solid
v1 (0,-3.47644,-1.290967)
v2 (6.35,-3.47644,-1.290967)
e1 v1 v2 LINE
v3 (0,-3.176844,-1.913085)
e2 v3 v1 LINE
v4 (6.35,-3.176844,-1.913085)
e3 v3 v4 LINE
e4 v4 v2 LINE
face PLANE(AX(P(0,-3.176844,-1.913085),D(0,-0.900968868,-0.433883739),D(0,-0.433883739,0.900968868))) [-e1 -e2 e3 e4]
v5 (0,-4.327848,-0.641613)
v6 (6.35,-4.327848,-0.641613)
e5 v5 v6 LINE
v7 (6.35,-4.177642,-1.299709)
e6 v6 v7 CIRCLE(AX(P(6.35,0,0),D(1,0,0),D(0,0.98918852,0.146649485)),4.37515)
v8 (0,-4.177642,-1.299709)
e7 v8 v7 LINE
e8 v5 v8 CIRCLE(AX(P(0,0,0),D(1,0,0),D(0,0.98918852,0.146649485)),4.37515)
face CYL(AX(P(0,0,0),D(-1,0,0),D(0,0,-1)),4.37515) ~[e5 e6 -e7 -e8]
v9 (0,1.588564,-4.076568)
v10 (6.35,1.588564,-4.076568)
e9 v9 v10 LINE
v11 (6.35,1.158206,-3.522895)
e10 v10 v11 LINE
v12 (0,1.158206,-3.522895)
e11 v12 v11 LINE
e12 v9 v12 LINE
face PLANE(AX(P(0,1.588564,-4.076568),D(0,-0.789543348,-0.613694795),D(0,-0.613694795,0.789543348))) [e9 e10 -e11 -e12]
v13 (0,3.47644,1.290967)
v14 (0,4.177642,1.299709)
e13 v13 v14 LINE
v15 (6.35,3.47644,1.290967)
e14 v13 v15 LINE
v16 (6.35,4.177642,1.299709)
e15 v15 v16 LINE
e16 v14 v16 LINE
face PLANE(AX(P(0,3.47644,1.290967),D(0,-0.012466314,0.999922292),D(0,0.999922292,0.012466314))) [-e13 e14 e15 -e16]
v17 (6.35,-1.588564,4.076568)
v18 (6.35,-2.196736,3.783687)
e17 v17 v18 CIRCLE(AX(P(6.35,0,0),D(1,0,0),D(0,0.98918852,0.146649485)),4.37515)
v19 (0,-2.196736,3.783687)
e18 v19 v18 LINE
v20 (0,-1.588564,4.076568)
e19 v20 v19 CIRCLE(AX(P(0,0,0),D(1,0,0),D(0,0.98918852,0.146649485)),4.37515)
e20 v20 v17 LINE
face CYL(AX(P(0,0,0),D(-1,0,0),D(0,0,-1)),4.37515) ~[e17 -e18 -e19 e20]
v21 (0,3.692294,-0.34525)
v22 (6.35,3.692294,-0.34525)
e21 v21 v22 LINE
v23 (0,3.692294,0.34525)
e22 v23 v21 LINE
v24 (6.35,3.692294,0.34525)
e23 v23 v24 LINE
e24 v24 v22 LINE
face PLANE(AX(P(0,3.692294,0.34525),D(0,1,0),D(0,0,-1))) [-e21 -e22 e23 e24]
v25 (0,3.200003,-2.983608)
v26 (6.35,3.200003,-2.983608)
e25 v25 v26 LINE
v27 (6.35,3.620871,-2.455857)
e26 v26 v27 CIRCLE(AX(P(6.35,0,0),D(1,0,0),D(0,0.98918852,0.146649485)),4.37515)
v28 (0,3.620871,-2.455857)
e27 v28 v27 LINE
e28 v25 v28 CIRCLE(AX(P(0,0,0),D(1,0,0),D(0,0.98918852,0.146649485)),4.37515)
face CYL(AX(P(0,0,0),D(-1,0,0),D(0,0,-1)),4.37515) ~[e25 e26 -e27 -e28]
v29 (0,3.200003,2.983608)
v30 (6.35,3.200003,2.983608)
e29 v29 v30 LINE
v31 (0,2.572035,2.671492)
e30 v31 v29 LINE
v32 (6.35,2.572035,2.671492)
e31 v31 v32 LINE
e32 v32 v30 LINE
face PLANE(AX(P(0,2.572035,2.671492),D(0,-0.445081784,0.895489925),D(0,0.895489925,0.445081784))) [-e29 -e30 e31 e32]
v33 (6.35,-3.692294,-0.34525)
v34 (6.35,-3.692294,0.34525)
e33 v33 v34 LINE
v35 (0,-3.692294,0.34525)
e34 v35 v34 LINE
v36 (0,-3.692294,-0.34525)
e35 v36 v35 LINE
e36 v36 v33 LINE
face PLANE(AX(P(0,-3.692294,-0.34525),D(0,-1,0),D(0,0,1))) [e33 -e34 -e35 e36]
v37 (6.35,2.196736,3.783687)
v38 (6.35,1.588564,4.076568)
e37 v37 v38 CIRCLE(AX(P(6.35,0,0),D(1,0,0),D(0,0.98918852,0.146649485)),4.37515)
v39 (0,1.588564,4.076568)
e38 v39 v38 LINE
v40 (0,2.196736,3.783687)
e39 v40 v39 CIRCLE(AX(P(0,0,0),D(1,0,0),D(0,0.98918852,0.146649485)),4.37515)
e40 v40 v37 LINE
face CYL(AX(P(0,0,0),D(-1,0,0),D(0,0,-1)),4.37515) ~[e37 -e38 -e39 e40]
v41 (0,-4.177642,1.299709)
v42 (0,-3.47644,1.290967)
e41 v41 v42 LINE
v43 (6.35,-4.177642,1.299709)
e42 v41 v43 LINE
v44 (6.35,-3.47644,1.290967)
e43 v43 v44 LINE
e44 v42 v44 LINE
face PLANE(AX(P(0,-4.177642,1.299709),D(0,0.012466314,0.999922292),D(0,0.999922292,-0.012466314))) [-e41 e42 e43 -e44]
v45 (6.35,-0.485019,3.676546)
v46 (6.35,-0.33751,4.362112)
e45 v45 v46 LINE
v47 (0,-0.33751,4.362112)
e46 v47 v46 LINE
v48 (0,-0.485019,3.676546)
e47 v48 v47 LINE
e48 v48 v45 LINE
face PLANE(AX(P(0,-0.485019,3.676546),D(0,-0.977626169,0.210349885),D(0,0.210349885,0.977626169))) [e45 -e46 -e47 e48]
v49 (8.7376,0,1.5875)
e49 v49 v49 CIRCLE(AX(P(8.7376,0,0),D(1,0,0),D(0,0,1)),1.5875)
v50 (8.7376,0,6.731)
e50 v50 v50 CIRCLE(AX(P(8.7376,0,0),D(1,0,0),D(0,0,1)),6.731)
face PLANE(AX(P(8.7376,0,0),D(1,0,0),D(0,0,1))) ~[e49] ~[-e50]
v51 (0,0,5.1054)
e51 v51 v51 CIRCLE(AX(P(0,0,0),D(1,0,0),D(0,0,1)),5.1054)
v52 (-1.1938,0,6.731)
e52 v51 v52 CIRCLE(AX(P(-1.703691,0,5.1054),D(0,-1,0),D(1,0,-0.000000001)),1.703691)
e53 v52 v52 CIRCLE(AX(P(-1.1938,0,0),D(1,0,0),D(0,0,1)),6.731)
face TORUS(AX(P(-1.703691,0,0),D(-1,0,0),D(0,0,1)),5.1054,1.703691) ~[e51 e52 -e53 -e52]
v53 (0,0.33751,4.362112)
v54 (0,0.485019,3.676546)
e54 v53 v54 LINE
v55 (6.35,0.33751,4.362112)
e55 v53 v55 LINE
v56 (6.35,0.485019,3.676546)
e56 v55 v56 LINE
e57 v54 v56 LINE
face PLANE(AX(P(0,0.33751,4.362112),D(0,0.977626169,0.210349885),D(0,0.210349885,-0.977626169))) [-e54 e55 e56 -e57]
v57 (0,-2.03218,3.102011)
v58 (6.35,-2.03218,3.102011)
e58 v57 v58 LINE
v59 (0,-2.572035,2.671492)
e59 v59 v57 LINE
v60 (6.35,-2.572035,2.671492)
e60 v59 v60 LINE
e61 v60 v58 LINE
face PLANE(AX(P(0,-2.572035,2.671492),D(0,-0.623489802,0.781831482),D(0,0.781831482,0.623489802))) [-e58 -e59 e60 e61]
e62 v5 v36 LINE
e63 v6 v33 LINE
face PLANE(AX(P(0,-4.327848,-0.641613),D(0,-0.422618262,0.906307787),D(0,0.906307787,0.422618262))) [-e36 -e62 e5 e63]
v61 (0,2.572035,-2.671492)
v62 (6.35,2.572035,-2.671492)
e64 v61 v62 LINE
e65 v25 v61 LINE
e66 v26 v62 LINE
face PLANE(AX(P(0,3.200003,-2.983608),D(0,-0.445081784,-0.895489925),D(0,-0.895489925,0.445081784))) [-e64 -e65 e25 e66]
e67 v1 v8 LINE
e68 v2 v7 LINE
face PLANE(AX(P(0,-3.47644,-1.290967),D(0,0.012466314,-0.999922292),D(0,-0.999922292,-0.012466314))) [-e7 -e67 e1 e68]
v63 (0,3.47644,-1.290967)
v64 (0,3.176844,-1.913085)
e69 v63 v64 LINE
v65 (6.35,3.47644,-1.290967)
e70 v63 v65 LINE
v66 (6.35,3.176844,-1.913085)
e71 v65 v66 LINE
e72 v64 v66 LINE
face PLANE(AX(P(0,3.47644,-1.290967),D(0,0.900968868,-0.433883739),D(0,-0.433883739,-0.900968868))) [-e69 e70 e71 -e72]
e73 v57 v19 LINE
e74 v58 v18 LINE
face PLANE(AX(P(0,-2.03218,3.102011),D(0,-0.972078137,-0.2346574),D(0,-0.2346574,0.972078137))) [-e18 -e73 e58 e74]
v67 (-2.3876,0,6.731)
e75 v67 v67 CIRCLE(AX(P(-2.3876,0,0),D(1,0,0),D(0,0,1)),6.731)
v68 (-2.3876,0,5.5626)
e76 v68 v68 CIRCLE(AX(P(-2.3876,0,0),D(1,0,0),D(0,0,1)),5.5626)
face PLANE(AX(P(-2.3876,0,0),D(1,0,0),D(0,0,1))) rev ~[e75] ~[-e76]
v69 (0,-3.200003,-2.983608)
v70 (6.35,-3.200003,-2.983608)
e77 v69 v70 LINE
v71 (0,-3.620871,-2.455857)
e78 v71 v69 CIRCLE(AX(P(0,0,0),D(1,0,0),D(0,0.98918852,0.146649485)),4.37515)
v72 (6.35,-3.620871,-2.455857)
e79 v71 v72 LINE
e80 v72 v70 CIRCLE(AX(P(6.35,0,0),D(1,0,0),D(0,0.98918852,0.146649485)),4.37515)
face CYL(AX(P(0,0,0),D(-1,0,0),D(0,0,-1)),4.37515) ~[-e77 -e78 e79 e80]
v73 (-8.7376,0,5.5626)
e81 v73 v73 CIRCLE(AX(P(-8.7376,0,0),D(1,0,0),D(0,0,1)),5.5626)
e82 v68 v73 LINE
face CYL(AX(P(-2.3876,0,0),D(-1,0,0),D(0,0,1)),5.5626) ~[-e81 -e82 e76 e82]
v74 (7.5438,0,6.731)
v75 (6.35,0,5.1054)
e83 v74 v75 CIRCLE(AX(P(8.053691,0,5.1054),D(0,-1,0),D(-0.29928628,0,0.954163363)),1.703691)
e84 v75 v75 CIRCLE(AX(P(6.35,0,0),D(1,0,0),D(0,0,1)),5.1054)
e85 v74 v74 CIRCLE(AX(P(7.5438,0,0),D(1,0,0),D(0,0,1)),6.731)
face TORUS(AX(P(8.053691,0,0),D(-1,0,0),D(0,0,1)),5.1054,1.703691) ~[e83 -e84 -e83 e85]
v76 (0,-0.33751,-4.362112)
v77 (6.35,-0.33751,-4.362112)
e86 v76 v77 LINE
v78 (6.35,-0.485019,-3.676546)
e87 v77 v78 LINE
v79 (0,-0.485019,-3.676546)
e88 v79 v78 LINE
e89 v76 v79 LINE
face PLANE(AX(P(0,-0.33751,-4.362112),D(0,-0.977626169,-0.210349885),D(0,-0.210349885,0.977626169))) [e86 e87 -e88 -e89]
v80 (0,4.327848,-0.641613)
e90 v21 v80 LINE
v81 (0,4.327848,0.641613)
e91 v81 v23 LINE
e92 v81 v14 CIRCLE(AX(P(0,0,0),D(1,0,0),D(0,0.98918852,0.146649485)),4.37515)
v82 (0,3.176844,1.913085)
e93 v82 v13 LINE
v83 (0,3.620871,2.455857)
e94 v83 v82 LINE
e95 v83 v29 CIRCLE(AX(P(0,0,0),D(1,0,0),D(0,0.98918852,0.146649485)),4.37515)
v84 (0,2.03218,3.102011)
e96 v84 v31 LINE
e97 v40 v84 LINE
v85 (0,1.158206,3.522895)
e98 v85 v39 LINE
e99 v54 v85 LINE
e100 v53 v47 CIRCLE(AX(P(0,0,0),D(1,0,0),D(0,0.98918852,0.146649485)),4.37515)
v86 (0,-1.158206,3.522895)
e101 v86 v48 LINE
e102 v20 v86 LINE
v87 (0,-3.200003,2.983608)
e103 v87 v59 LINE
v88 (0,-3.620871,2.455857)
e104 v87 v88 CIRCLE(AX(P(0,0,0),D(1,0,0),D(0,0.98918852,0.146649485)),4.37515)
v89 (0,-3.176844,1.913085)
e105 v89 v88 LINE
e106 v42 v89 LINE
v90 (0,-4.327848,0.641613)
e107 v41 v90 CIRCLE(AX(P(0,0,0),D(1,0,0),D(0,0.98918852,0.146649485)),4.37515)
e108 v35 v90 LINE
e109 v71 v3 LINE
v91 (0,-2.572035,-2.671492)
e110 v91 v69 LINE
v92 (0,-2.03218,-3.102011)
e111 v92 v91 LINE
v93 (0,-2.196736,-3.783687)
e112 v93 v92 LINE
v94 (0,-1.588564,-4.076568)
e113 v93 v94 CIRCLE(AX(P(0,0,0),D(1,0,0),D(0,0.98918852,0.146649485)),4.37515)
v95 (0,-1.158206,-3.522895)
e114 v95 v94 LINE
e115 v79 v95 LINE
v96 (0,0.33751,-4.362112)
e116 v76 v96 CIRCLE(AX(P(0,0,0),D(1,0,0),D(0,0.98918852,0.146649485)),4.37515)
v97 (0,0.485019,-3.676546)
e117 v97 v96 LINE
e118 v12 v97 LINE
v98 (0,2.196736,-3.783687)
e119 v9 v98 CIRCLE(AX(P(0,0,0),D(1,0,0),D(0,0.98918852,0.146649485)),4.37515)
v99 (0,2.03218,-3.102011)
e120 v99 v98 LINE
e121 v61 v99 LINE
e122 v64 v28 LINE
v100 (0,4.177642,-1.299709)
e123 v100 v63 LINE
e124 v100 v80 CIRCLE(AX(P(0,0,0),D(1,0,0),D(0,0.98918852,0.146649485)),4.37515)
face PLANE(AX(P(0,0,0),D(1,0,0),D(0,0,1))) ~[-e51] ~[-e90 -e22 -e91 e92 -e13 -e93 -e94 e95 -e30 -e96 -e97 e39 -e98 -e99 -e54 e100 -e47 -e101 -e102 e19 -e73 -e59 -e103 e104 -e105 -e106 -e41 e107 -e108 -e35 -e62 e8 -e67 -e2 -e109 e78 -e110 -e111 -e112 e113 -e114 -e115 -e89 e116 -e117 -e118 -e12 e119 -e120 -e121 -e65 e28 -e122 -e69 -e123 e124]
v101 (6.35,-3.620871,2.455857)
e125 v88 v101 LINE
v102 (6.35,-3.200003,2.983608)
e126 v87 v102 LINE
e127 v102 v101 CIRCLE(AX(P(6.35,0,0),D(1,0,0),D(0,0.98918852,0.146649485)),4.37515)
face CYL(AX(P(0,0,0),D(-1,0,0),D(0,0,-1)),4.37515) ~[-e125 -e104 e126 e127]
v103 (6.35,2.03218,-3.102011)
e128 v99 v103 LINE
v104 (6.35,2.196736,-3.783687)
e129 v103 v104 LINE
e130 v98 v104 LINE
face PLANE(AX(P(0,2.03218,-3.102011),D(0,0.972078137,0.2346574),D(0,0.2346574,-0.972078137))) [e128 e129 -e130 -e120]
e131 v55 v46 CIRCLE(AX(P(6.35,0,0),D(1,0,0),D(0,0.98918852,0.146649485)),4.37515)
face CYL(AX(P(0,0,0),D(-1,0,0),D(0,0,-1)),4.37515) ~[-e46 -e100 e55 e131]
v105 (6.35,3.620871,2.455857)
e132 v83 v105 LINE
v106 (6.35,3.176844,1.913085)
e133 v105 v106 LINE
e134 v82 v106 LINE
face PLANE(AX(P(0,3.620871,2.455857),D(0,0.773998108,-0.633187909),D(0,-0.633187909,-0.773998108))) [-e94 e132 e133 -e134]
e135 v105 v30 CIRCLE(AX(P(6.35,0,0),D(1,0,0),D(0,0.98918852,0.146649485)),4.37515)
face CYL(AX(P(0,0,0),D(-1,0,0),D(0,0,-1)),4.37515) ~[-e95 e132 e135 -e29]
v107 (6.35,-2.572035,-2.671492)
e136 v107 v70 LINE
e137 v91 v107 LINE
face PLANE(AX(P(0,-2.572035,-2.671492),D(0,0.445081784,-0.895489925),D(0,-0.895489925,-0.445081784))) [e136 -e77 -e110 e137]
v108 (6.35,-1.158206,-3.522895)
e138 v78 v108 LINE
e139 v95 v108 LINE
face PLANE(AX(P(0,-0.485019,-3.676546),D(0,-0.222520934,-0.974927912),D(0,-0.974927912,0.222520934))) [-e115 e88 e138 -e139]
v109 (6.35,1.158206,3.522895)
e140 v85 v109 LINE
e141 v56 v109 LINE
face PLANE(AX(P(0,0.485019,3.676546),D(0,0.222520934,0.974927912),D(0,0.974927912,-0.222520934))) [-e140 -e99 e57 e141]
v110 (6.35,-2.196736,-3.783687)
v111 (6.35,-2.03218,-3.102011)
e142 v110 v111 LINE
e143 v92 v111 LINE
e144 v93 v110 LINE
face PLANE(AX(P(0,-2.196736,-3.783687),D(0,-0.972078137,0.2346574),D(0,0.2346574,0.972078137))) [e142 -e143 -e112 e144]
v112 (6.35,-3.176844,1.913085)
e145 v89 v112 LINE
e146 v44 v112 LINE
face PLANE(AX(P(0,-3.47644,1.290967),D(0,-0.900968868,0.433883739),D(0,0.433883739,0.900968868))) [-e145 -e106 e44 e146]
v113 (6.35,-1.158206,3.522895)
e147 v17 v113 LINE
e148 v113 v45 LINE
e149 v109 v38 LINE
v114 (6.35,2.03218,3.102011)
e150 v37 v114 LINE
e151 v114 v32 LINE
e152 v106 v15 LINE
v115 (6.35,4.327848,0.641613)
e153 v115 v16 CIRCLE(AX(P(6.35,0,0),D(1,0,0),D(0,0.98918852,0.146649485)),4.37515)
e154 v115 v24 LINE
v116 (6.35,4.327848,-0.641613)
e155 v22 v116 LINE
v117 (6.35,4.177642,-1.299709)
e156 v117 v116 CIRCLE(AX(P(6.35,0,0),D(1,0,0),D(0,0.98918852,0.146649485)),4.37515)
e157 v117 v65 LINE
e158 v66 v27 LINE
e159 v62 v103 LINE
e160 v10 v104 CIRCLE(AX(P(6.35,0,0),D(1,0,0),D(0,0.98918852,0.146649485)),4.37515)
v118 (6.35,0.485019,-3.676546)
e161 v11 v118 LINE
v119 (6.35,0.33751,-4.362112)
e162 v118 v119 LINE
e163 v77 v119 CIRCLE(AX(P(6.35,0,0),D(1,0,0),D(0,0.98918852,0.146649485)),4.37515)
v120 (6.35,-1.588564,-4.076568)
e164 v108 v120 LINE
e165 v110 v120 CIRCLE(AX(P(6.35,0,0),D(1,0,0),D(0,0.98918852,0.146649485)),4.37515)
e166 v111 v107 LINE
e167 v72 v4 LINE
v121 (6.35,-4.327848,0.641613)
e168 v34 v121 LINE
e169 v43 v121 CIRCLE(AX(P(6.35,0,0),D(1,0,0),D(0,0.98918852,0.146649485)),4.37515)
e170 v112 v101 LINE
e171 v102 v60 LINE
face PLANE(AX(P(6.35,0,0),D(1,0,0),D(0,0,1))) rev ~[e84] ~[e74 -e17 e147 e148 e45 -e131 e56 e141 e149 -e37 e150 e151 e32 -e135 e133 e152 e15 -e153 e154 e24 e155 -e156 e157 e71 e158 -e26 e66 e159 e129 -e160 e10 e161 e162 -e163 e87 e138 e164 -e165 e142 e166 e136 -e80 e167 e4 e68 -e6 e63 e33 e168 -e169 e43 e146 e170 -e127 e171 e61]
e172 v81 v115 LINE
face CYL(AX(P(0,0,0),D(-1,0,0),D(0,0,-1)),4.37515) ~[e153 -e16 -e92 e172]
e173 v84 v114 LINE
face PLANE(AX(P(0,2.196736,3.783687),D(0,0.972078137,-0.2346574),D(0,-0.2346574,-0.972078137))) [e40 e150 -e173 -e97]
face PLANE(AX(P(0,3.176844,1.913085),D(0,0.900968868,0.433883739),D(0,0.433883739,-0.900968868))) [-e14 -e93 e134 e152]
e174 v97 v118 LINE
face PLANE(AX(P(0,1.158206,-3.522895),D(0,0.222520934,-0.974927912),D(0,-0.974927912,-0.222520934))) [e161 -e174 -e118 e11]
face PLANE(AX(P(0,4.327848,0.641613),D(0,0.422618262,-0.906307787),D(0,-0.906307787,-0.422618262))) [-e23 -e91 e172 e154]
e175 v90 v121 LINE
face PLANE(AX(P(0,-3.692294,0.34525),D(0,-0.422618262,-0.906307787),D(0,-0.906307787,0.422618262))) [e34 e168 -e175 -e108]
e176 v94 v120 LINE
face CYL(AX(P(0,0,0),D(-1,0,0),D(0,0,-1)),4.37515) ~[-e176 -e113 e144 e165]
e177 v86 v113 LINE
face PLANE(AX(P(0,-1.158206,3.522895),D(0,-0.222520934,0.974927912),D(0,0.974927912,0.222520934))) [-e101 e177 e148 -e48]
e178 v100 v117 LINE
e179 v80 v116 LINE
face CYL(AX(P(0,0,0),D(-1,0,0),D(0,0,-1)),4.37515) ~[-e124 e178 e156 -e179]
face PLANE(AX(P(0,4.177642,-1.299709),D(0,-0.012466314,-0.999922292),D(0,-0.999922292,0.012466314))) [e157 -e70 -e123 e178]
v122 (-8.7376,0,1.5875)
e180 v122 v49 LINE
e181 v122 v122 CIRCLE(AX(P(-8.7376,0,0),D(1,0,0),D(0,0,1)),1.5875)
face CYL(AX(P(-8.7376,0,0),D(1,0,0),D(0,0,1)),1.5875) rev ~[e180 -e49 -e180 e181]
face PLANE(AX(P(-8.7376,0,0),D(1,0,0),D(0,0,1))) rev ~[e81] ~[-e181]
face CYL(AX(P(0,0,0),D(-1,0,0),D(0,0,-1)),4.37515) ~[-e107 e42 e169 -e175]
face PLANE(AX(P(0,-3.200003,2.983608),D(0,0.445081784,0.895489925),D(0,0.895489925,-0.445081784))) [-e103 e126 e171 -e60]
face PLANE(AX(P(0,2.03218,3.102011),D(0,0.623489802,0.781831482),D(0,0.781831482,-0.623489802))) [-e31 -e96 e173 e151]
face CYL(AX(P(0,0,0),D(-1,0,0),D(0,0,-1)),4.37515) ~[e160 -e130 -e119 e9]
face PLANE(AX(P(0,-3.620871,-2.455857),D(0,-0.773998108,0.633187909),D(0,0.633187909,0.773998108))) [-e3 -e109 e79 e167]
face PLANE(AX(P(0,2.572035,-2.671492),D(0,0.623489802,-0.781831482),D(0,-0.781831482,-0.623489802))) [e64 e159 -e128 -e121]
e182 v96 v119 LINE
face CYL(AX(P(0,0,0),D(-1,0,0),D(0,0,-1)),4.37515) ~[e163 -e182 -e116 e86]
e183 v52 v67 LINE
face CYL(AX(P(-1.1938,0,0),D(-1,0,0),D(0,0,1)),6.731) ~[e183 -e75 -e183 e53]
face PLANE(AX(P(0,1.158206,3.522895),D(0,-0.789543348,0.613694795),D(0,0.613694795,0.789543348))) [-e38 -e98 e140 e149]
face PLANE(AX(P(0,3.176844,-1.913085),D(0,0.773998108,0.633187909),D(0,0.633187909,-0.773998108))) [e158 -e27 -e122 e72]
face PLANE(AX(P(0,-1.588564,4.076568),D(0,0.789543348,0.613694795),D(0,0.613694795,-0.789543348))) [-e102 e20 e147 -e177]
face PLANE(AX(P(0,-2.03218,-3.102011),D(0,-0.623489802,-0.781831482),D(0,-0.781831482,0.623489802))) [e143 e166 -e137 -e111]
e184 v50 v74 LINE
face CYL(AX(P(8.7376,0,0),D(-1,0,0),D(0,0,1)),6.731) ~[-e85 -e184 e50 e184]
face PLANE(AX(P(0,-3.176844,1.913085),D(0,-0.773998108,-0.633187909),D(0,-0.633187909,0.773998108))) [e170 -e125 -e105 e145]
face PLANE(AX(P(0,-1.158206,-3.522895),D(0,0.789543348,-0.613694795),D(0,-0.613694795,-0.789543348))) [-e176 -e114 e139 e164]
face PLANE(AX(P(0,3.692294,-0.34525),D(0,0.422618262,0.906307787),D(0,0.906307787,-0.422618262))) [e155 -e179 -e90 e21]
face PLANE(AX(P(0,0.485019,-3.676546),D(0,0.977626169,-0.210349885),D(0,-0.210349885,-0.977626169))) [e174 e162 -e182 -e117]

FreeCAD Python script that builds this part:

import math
import FreeCAD as App
import Part
import Sketcher
from FreeCAD import Vector
Q = App.Units.Quantity

doc = App.newDocument("Part")
body = doc.addObject("PartDesign::Body", "Body")

# Sketch on XY plane
sketch1 = body.newObject("Sketcher::SketchObject", "Sketch")
sketch1.AttachmentSupport = (doc.getObject("XY_Plane"), [""])
sketch1.MapMode = "FlatFace"
sketch1.addGeometry([
    Part.LineSegment(Vector(-8.7, 1.6, 0), Vector(8.7, 1.6, 0)),  # 0
    Part.LineSegment(Vector(8.7, 1.6, 0), Vector(8.7, 6.7, 0)),  # 1
    Part.LineSegment(Vector(8.7, 6.7, 0), Vector(7.5, 6.7, 0)),  # 2
    Part.ArcOfCircle(Part.Circle(Vector(8.1, 5.1, 0), Vector(0, 0, 1), 1.7), math.radians(107), math.radians(180)),  # 3
    Part.LineSegment(Vector(6.3, 5.1, 0), Vector(6.3, 4.5, 0)),  # 4
    Part.LineSegment(Vector(6.3, 4.5, 0), Vector(0, 4.5, 0)),  # 5
    Part.LineSegment(Vector(0, 4.5, 0), Vector(0, 5.1, 0)),  # 6
    Part.ArcOfCircle(Part.Circle(Vector(-1.7, 5.1, 0), Vector(0, 0, 1), 1.7), math.radians(0), math.radians(73)),  # 7
    Part.LineSegment(Vector(-1.2, 6.7, 0), Vector(-2.4, 6.7, 0)),  # 8
    Part.LineSegment(Vector(-2.4, 6.7, 0), Vector(-2.4, 5.6, 0)),  # 9
    Part.LineSegment(Vector(-2.4, 5.6, 0), Vector(-8.7, 5.6, 0)),  # 10
    Part.LineSegment(Vector(-8.7, 5.6, 0), Vector(-8.7, 1.6, 0)),  # 11
], False)
sketch1.addConstraint([
    Sketcher.Constraint("Coincident", 0, 2, 1, 1),
    Sketcher.Constraint("Coincident", 1, 2, 2, 1),
    Sketcher.Constraint("Coincident", 2, 2, 3, 1),
    Sketcher.Constraint("Tangent", 3, 2, 4, 1),
    Sketcher.Constraint("Coincident", 4, 2, 5, 1),
    Sketcher.Constraint("Coincident", 5, 2, 6, 1),
    Sketcher.Constraint("Tangent", 6, 2, 7, 1),
    Sketcher.Constraint("Coincident", 7, 2, 8, 1),
    Sketcher.Constraint("Coincident", 8, 2, 9, 1),
    Sketcher.Constraint("Coincident", 9, 2, 10, 1),
    Sketcher.Constraint("Coincident", 10, 2, 11, 1),
    Sketcher.Constraint("Coincident", 11, 2, 0, 1),
    Sketcher.Constraint("Horizontal", 0),
    Sketcher.Constraint("Vertical", 1),
    Sketcher.Constraint("Horizontal", 2),
    Sketcher.Constraint("Vertical", 4),
    Sketcher.Constraint("Horizontal", 5),
    Sketcher.Constraint("Vertical", 6),
    Sketcher.Constraint("Horizontal", 8),
    Sketcher.Constraint("Vertical", 9),
    Sketcher.Constraint("Horizontal", 10),
    Sketcher.Constraint("Vertical", 11),
    Sketcher.Constraint("Equal", 3, 7),
    Sketcher.Constraint("PointOnObject", 5, 2, -2),
    Sketcher.Constraint("Horizontal", 3, 3, 7, 3),
    Sketcher.Constraint("Horizontal", 2, 2, 7, 2),
    Sketcher.Constraint("Equal", 2, 8),
    Sketcher.Constraint("Equal", 5, 10),
    Sketcher.Constraint("DistanceX", 5, 2, 5, 1, Q("0.25 in")),
    Sketcher.Constraint("DistanceX", 0, 1, 0, 2, Q("0.688 in")),
    Sketcher.Constraint("DistanceX", 2, 2, 2, 1, Q("0.047 in")),
    Sketcher.Constraint("DistanceY", 9, 2, 9, 1, Q("0.046 in")),
    Sketcher.Constraint("DistanceY", 1, 1, 1, 2, Q("0.2025 in")),
    Sketcher.Constraint("DistanceY", 4, 2, 4, 1, Q("0.0225 in")),
    Sketcher.Constraint("DistanceY", -1, 1, 3, 3, Q("0.201 in")),
    Sketcher.Constraint("DistanceY", -1, 1, 0, 2, Q("0.0625 in")),
])
revolution = body.newObject("PartDesign::Revolution", "Revolution")
revolution.Profile = sketch1
revolution.ReferenceAxis = (sketch1, ["H_Axis"])
revolution.Angle = 360

# Sketch on YZ plane
sketch2 = body.newObject("Sketcher::SketchObject", "Sketch001")
sketch2.AttachmentSupport = (doc.getObject("YZ_Plane"), [""])
sketch2.MapMode = "FlatFace"
sketch2.addGeometry([
    Part.Circle(Vector(0, 0, 0), Vector(0, 0, 1), 4.5),
    Part.Circle(Vector(0, 0, 0), Vector(0, 0, 1), 4.4),
], False)
sketch2.addConstraint([
    Sketcher.Constraint("Coincident", 0, 3, -1, 1),
    Sketcher.Constraint("Coincident", 1, 3, -1, 1),
    Sketcher.Constraint("Diameter", 0, Q("0.357 in")),
    Sketcher.Constraint("Diameter", 1, Q("0.3445 in")),
])
pocket1 = body.newObject("PartDesign::Pocket", "Pocket")
pocket1.Profile = sketch2
pocket1.Length = Q("0.25 in")
pocket1.Reversed = True

# Sketch on YZ plane
sketch3 = body.newObject("Sketcher::SketchObject", "Sketch002")
sketch3.AttachmentSupport = (doc.getObject("YZ_Plane"), [""])
sketch3.MapMode = "FlatFace"
sketch3.addGeometry([
    Part.LineSegment(Vector(4.3, 0.6, 0), Vector(3.7, 0.3, 0)),
    Part.LineSegment(Vector(3.7, 0.3, 0), Vector(3.7, -0.3, 0)),
    Part.LineSegment(Vector(3.7, -0.3, 0), Vector(4.3, -0.6, 0)),
    Part.ArcOfCircle(Part.Circle(Vector(0, 0, 0), Vector(0, 0, 1), 4.4), math.radians(-8.43), math.radians(8.43)),
], False)
sketch3.addConstraint([
    Sketcher.Constraint("Coincident", 0, 2, 1, 1),
    Sketcher.Constraint("Coincident", 1, 2, 2, 1),
    Sketcher.Constraint("Coincident", 2, 2, 3, 1),
    Sketcher.Constraint("Coincident", 3, 2, 0, 1),
    Sketcher.Constraint("Vertical", 1),
    Sketcher.Constraint("Coincident", 3, 3, -1, 1),
    Sketcher.Constraint("Vertical", 2, 2, 3, 2),
    Sketcher.Constraint("Equal", 0, 2),
    Sketcher.Constraint("Angle", 0, Q("-155 deg")),
    Sketcher.Constraint("Radius", 3, 4.37515),
    Sketcher.Constraint("DistanceY", 1, 2, 1, 1, 0.690499),
    Sketcher.Constraint("DistanceX", -1, 1, 2, 2, 4.327848),
])
pocket2 = body.newObject("PartDesign::Pocket", "Pocket001")
pocket2.Profile = sketch3
pocket2.Length = Q("0.25 in")
pocket2.Reversed = True
doc.recompute()

polarpattern = body.newObject("PartDesign::PolarPattern", "PolarPattern")
polarpattern.Originals = [pocket2]
polarpattern.Axis = (doc.getObject("X_Axis"), [""])
polarpattern.Angle = 360
polarpattern.Occurrences = 14
body.Tip = polarpattern

doc.recompute()
